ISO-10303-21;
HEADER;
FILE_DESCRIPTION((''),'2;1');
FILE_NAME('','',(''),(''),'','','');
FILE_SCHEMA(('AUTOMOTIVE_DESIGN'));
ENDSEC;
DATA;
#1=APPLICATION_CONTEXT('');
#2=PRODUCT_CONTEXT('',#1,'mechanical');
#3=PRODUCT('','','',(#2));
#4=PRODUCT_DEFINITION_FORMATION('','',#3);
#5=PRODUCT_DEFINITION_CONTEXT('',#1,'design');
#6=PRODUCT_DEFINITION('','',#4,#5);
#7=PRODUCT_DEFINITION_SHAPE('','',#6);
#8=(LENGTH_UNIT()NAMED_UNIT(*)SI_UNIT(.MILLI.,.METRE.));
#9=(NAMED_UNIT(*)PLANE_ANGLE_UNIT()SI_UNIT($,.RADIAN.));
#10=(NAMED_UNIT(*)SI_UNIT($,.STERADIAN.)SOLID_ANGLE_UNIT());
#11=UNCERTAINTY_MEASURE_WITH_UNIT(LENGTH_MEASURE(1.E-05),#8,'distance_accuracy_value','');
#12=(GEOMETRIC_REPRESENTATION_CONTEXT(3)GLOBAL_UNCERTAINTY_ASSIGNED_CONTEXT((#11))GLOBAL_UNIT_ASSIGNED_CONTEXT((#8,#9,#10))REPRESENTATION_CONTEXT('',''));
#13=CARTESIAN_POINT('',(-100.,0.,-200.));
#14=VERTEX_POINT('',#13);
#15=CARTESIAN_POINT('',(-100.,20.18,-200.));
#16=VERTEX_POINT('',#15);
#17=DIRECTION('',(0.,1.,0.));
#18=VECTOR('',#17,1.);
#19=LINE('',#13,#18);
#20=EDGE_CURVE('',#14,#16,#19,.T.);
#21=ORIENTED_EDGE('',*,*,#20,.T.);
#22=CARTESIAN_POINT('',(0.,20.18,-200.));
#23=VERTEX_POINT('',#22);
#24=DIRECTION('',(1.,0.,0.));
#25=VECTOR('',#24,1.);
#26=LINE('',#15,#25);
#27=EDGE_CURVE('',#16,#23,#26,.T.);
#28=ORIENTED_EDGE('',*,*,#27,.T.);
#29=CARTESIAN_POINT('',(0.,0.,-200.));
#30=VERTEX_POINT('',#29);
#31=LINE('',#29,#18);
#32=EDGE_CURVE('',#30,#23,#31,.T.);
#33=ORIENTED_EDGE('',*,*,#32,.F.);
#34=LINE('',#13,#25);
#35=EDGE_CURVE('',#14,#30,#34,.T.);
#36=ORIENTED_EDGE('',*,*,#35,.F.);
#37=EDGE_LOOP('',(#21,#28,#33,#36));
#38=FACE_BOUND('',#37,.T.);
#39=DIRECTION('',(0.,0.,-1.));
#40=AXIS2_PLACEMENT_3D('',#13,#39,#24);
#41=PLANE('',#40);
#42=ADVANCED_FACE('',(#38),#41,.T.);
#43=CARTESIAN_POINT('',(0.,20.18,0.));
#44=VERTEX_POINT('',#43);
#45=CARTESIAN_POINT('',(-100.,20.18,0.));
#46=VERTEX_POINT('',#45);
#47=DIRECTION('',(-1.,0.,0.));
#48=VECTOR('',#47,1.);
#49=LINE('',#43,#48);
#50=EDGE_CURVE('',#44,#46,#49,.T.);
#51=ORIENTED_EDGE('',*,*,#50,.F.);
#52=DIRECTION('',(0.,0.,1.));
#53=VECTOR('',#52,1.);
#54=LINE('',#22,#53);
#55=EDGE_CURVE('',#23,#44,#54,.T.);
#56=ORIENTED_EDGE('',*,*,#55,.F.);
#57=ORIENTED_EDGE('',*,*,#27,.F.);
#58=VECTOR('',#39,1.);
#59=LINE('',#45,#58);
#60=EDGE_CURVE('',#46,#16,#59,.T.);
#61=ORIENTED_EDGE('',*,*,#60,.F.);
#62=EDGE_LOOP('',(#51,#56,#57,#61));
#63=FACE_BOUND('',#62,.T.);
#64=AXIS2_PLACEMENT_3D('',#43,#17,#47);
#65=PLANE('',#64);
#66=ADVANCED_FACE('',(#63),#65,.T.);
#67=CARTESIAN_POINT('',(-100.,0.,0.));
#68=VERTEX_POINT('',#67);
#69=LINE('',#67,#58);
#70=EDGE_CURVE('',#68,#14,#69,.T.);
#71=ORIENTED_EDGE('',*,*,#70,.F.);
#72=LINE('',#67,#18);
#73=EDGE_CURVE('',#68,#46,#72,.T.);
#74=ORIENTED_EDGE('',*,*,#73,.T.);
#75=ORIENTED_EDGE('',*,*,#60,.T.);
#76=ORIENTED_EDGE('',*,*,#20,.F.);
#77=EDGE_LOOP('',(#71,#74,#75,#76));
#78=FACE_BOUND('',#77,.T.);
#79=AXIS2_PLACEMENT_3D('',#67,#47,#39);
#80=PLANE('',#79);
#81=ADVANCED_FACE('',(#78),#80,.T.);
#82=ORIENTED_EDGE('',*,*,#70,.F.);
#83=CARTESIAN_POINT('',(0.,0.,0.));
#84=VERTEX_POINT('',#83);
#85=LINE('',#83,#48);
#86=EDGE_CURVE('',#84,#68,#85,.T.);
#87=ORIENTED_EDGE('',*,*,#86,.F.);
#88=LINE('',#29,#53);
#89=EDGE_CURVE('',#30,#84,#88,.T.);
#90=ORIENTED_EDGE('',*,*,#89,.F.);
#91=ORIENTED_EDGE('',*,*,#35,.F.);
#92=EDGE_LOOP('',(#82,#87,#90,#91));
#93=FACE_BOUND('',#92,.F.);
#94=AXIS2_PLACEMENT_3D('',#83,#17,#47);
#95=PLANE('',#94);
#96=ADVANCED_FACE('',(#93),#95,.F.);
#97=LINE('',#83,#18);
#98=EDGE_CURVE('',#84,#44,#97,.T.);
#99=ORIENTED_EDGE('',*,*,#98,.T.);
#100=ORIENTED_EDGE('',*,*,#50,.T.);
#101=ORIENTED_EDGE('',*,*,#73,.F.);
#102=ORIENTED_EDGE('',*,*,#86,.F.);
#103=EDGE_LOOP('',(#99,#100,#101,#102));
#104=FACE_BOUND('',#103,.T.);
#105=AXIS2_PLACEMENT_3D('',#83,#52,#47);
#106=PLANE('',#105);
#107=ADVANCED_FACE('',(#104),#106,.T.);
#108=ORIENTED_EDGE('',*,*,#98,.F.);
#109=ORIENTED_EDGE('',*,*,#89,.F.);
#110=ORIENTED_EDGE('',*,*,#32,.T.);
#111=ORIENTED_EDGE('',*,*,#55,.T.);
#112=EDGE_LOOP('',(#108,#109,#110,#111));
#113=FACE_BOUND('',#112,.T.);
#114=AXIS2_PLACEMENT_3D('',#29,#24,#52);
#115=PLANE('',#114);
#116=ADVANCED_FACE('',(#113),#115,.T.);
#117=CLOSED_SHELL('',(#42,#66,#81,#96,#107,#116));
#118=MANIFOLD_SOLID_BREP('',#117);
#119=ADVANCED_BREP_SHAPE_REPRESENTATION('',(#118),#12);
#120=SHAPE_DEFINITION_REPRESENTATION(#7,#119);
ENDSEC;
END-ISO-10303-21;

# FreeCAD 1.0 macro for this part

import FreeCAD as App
import Part
import Sketcher
from FreeCAD import Vector
Q = App.Units.Quantity


def add_polygon(sketch, points):
    """Adds a closed chain of lines whose ends are joined by coincident constraints."""
    first, n = sketch.GeometryCount, len(points)
    for a, b in zip(points, points[1:] + points[:1]):
        sketch.addGeometry(Part.LineSegment(App.Vector(*a, 0), App.Vector(*b, 0)), False)
    for i in range(n):
        sketch.addConstraint(Sketcher.Constraint("Coincident", first + i, 2, first + (i + 1) % n, 1))

doc = App.newDocument("Part")
body = doc.addObject("PartDesign::Body", "Body")

sketch1 = body.newObject("Sketcher::SketchObject", "Sketch")
sketch1.AttachmentSupport = (doc.getObject("XZ_Plane"), [""])
sketch1.MapMode = "FlatFace"
add_polygon(sketch1, [(-100, 0), (0, 0), (0, -200), (-100, -200)])
sketch1.addConstraint([
    Sketcher.Constraint("Horizontal", 0),
    Sketcher.Constraint("Vertical", 1),
    Sketcher.Constraint("Horizontal", 2),
    Sketcher.Constraint("Vertical", 3),
    Sketcher.Constraint("Coincident", 0, 2, -1, 1),
    Sketcher.Constraint("DistanceX", 0, 1, 0, 2, Q("100 mm")),
    Sketcher.Constraint("DistanceY", 1, 2, 1, 1, Q("200 mm")),
])
pad1 = body.newObject("PartDesign::Pad", "Pad")
pad1.Profile = sketch1
pad1.Length = 20.18
pad1.Reversed = True

doc.recompute()
